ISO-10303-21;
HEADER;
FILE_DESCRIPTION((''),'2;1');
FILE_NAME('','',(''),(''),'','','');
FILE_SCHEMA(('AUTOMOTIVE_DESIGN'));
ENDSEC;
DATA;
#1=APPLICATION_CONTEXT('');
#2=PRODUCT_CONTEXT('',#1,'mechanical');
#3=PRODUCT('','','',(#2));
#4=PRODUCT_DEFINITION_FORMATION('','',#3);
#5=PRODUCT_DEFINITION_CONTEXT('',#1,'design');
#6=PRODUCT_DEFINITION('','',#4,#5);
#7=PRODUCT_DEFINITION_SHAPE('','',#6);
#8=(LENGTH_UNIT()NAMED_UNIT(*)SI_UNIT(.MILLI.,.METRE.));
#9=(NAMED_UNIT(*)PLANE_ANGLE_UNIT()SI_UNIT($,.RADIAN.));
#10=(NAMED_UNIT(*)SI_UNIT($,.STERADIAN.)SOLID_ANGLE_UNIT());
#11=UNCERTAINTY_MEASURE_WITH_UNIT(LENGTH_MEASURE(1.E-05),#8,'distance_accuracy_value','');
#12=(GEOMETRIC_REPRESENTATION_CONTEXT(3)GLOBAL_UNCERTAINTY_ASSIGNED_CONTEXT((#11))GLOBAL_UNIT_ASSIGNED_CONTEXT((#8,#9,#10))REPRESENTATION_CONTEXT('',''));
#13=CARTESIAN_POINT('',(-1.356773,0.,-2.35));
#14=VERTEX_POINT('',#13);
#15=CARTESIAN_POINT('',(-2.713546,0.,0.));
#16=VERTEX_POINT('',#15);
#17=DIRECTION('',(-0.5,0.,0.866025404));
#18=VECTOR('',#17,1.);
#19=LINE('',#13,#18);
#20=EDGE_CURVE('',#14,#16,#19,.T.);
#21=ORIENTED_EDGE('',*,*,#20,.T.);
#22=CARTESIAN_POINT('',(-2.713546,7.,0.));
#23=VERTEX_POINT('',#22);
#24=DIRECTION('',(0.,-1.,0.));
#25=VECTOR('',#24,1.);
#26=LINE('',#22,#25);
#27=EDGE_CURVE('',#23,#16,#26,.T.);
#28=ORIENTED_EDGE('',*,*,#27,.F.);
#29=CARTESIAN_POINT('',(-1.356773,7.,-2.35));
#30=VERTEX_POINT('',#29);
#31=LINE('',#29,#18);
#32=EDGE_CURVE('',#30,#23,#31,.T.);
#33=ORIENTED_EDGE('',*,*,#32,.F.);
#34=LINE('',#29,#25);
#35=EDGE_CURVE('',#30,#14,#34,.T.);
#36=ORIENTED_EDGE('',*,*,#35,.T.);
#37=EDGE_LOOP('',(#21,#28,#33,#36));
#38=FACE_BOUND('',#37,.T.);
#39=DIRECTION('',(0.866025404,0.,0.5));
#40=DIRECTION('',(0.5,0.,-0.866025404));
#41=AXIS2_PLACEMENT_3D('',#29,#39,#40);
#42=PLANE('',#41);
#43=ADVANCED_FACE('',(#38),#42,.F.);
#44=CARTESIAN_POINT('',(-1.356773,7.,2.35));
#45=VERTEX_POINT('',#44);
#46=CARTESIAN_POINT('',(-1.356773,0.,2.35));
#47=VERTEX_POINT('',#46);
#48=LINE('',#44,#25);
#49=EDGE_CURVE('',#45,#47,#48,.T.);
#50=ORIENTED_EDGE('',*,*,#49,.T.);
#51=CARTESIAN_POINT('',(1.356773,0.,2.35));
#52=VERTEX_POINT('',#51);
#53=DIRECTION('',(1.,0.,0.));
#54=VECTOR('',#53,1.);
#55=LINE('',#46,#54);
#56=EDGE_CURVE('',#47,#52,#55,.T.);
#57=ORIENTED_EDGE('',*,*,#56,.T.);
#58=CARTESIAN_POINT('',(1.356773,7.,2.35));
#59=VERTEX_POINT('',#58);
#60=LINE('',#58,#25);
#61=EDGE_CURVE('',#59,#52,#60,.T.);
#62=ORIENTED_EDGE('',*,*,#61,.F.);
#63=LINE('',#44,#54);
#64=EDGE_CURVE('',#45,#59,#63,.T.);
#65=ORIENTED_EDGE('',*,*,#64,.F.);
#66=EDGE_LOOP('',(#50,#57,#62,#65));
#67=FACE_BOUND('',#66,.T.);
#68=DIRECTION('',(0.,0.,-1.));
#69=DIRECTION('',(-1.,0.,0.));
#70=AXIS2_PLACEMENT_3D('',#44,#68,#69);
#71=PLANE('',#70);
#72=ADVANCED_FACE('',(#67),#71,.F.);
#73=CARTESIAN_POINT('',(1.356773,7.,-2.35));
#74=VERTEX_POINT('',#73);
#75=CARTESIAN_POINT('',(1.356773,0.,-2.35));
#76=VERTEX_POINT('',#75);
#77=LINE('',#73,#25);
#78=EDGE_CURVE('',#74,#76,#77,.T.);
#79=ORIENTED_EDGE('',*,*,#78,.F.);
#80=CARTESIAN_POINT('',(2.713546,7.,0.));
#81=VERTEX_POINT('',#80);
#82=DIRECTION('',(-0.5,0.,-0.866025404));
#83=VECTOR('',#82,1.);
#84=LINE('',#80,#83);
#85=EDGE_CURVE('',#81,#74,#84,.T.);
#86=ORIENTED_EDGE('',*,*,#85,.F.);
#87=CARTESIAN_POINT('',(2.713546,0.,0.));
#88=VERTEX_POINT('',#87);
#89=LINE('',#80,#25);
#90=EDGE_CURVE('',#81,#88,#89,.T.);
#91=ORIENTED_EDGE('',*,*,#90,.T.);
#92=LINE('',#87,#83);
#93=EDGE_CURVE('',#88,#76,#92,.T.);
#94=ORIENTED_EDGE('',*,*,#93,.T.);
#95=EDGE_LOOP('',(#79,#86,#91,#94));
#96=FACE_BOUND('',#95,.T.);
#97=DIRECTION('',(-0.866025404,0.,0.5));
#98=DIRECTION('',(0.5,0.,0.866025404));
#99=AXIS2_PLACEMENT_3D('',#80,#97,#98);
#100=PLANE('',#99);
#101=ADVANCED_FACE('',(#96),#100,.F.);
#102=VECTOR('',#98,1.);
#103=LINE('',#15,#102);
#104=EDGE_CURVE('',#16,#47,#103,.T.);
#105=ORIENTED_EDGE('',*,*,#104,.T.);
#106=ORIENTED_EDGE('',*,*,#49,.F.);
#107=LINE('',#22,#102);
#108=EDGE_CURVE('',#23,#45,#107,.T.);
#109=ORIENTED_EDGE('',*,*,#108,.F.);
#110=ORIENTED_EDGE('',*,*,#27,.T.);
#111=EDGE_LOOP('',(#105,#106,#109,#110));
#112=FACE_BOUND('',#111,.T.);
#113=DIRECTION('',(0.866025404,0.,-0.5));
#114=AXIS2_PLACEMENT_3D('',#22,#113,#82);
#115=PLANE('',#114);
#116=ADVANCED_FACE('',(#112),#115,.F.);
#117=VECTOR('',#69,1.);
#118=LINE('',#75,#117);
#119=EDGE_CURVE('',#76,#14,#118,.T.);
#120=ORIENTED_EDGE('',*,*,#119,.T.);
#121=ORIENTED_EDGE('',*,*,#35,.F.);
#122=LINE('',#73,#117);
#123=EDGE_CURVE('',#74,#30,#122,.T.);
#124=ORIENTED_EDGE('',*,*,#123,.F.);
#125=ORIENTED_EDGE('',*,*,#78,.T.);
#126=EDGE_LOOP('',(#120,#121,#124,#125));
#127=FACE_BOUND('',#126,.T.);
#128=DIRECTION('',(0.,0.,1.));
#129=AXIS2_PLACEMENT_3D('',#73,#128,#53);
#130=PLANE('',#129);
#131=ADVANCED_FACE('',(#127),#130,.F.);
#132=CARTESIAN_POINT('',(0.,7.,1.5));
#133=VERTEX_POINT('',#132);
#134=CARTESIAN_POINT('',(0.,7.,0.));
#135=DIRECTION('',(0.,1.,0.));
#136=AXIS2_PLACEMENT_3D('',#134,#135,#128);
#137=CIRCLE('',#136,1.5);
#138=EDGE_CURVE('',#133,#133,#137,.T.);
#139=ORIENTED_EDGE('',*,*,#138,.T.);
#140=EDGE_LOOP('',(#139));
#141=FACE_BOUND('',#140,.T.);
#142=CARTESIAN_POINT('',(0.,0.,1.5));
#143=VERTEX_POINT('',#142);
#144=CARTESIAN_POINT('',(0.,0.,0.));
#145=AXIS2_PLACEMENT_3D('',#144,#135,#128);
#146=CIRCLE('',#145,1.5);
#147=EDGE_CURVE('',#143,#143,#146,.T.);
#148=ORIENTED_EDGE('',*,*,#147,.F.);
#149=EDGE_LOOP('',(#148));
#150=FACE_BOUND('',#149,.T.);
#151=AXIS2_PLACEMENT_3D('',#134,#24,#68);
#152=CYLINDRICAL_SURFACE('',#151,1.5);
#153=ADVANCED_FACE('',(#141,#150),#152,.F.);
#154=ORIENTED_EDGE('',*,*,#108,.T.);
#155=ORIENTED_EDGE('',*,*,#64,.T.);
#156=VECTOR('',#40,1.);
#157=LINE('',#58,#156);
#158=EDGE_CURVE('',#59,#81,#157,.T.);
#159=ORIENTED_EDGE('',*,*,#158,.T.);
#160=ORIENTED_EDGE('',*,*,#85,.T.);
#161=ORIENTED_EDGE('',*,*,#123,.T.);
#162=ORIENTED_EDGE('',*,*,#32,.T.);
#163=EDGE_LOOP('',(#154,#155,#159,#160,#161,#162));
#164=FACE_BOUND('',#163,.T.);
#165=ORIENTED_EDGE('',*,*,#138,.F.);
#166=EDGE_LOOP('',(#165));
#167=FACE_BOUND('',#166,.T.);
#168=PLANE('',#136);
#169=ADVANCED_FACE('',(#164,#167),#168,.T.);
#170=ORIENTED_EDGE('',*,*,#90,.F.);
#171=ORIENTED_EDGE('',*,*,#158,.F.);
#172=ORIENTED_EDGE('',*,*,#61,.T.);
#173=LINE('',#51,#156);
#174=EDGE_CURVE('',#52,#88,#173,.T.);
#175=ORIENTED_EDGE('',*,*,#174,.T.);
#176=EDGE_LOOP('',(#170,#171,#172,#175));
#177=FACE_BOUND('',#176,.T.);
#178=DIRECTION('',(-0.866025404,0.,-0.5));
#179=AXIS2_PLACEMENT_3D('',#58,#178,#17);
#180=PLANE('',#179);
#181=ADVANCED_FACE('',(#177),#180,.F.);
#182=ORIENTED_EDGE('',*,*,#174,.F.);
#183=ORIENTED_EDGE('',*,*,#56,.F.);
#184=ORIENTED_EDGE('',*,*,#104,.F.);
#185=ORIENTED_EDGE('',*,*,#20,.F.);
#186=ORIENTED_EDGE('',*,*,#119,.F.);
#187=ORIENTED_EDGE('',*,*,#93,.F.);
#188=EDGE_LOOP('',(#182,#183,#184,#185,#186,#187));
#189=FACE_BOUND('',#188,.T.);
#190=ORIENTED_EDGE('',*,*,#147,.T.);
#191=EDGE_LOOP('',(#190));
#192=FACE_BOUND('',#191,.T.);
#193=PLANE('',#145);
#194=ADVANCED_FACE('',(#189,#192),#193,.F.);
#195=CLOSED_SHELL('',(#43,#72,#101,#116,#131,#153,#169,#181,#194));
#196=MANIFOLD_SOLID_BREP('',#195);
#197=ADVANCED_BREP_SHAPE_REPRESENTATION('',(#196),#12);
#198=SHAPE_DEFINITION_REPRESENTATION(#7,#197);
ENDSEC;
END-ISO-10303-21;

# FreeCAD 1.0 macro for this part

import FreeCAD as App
import Part
import Sketcher

V = App.Vector
Q = App.Units.Quantity


def add_polygon(sketch, points):
    """Adds a closed chain of lines whose ends are joined by coincident constraints."""
    first, n = sketch.GeometryCount, len(points)
    for a, b in zip(points, points[1:] + points[:1]):
        sketch.addGeometry(Part.LineSegment(App.Vector(*a, 0), App.Vector(*b, 0)), False)
    for i in range(n):
        sketch.addConstraint(Sketcher.Constraint("Coincident", first + i, 2, first + (i + 1) % n, 1))

doc = App.newDocument("Part")
body = doc.addObject("PartDesign::Body", "Body")

# Sketch on XZ plane
sketch1 = body.newObject("Sketcher::SketchObject", "Sketch")
sketch1.AttachmentSupport = (doc.getObject("XZ_Plane"), [""])
sketch1.MapMode = "FlatFace"
add_polygon(sketch1, [(1.4, 2.4), (2.7, 0), (1.4, -2.4), (-1.4, -2.4), (-2.7, 0), (-1.4, 2.4)])  # lines 0-5
sketch1.addGeometry(Part.Circle(V(0, 0, 0), V(0, 0, 1), 1.5), False)  # 6
sketch1.addConstraint([
    Sketcher.Constraint("Horizontal", 2),
    Sketcher.Constraint("Horizontal", 5),
    Sketcher.Constraint("Coincident", 6, 3, -1, 1),
    Sketcher.Constraint("Symmetric", 0, 2, 3, 2, -1, 1),
    Sketcher.Constraint("Symmetric", 1, 2, 4, 2, -1, 1),
    Sketcher.Constraint("PointOnObject", 0, 2, -1),
    Sketcher.Constraint("Parallel", 0, 3),
    Sketcher.Constraint("Vertical", 2, 2, 4, 2),
    Sketcher.Constraint("Diameter", 6, Q("3 mm")),
    Sketcher.Constraint("Angle", 0, Q("-60 deg")),
    Sketcher.Constraint("DistanceY", 2, 2, 4, 2, Q("4.7 mm")),
    Sketcher.Constraint("DistanceX", 2, 2, 2, 1, Q("2.713546 mm")),
])
pad1 = body.newObject("PartDesign::Pad", "Pad")
pad1.Profile = sketch1
pad1.Length = 7
pad1.Reversed = True

doc.recompute()
